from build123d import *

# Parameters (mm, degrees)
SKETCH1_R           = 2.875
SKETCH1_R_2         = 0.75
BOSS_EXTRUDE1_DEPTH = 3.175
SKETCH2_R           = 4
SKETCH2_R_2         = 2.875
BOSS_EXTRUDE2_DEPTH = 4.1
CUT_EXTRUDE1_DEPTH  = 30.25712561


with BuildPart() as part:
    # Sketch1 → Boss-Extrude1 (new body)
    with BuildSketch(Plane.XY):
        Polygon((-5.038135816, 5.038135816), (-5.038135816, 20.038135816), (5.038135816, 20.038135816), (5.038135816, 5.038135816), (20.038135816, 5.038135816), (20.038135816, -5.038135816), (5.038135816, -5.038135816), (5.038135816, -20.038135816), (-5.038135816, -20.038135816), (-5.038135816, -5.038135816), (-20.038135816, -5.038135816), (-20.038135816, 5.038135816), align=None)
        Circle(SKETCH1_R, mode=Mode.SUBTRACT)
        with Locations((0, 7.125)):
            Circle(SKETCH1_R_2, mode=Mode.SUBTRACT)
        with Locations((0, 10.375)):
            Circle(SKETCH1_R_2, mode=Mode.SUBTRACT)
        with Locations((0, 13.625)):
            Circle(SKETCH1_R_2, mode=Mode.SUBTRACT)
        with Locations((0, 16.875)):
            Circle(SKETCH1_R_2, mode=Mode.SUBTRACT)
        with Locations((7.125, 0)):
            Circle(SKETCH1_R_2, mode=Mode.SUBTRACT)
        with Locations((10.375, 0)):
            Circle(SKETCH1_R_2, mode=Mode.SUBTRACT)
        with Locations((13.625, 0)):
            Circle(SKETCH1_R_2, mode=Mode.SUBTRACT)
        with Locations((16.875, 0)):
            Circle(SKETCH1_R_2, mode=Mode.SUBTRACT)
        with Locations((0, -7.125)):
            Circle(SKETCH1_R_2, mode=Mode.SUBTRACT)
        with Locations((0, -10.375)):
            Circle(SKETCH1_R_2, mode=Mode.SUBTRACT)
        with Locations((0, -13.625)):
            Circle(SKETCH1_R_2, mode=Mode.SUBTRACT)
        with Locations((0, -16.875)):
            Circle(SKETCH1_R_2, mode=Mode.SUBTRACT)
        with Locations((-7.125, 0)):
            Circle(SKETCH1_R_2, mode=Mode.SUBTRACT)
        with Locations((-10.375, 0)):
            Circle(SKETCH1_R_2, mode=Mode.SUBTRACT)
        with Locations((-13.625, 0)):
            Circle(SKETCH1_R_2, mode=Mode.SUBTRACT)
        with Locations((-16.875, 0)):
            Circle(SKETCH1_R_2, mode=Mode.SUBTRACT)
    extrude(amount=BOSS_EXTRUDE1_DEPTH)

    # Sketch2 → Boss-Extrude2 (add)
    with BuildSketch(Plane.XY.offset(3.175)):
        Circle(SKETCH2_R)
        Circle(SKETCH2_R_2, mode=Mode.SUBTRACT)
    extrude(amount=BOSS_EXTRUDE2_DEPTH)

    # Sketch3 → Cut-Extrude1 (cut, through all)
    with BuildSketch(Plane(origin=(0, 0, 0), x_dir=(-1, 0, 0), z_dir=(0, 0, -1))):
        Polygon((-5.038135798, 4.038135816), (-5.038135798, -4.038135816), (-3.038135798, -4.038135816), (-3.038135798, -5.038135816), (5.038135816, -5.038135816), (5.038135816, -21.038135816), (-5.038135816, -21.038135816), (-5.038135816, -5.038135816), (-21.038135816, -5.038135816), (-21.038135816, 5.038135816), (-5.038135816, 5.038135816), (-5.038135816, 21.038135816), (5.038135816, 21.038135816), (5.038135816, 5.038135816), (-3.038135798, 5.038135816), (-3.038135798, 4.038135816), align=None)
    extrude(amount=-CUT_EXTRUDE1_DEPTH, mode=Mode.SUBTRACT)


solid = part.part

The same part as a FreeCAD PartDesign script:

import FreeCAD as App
import Part
import Sketcher
from FreeCAD import Vector


def add_polygon(sketch, points):
    """Adds a closed chain of lines whose ends are joined by coincident constraints."""
    first, n = sketch.GeometryCount, len(points)
    for a, b in zip(points, points[1:] + points[:1]):
        sketch.addGeometry(Part.LineSegment(App.Vector(*a, 0), App.Vector(*b, 0)), False)
    for i in range(n):
        sketch.addConstraint(Sketcher.Constraint("Coincident", first + i, 2, first + (i + 1) % n, 1))

doc = App.newDocument("Part")
body = doc.addObject("PartDesign::Body", "Body")

sketch1 = doc.addObject("Sketcher::SketchObject", "Sketch")
body.addObject(sketch1)
sketch1.AttachmentSupport = (doc.XY_Plane, [""])
sketch1.MapMode = "FlatFace"
add_polygon(sketch1, [(-5, 20), (-5, 5), (-20, 5), (-20, -5), (-5, -5), (-5, -20), (5, -20), (5, -5), (20, -5), (20, 5), (5, 5), (5, 20)])
sketch1.addGeometry(Part.Circle(Vector(0, -16.9, 0), Vector(0, 0, 1), 0.8), False)
sketch1.addGeometry(Part.Circle(Vector(0, -13.6, 0), Vector(0, 0, 1), 0.8), False)
sketch1.addGeometry(Part.Circle(Vector(0, -10.4, 0), Vector(0, 0, 1), 0.8), False)
sketch1.addGeometry(Part.Circle(Vector(0, -7.1, 0), Vector(0, 0, 1), 0.8), False)
sketch1.addGeometry(Part.Circle(Vector(16.9, 0, 0), Vector(0, 0, 1), 0.8), False)
sketch1.addGeometry(Part.Circle(Vector(13.6, 0, 0), Vector(0, 0, 1), 0.8), False)
sketch1.addGeometry(Part.Circle(Vector(10.4, 0, 0), Vector(0, 0, 1), 0.8), False)
sketch1.addGeometry(Part.Circle(Vector(7.1, 0, 0), Vector(0, 0, 1), 0.8), False)
sketch1.addGeometry(Part.Circle(Vector(0, 0, 0), Vector(0, 0, 1), 2.9), False)
sketch1.addGeometry(Part.Circle(Vector(-7.1, 0, 0), Vector(0, 0, 1), 0.8), False)
sketch1.addGeometry(Part.Circle(Vector(0, 7.1, 0), Vector(0, 0, 1), 0.8), False)
sketch1.addGeometry(Part.Circle(Vector(-10.4, 0, 0), Vector(0, 0, 1), 0.8), False)
sketch1.addGeometry(Part.Circle(Vector(-13.6, 0, 0), Vector(0, 0, 1), 0.8), False)
sketch1.addGeometry(Part.Circle(Vector(-16.9, 0, 0), Vector(0, 0, 1), 0.8), False)
sketch1.addGeometry(Part.Circle(Vector(0, 10.4, 0), Vector(0, 0, 1), 0.8), False)
sketch1.addGeometry(Part.Circle(Vector(0, 13.6, 0), Vector(0, 0, 1), 0.8), False)
sketch1.addGeometry(Part.Circle(Vector(0, 16.9, 0), Vector(0, 0, 1), 0.8), False)
sketch1.addConstraint([
    Sketcher.Constraint("Vertical", 0),
    Sketcher.Constraint("Horizontal", 1),
    Sketcher.Constraint("Vertical", 2),
    Sketcher.Constraint("Horizontal", 3),
    Sketcher.Constraint("Vertical", 4),
    Sketcher.Constraint("Horizontal", 5),
    Sketcher.Constraint("Vertical", 6),
    Sketcher.Constraint("Horizontal", 7),
    Sketcher.Constraint("Vertical", 8),
    Sketcher.Constraint("Horizontal", 9),
    Sketcher.Constraint("Vertical", 10),
    Sketcher.Constraint("Horizontal", 11),
    Sketcher.Constraint("Coincident", 20, 3, -1, 1),
    Sketcher.Constraint("Equal", 12, 13),
    Sketcher.Constraint("Equal", 13, 14),
    Sketcher.Constraint("Equal", 14, 15),
    Sketcher.Constraint("Equal", 15, 16),
    Sketcher.Constraint("Equal", 16, 17),
    Sketcher.Constraint("Equal", 17, 18),
    Sketcher.Constraint("Equal", 18, 19),
    Sketcher.Constraint("Equal", 19, 21),
    Sketcher.Constraint("Equal", 21, 22),
    Sketcher.Constraint("Equal", 22, 23),
    Sketcher.Constraint("Equal", 23, 24),
    Sketcher.Constraint("Equal", 24, 25),
    Sketcher.Constraint("Equal", 25, 26),
    Sketcher.Constraint("Equal", 26, 27),
    Sketcher.Constraint("Equal", 27, 28),
    Sketcher.Constraint("Symmetric", 19, 3, 21, 3, -1, 1),
    Sketcher.Constraint("Symmetric", 15, 3, 22, 3, -1, 1),
    Sketcher.Constraint("Symmetric", 18, 3, 23, 3, -1, 1),
    Sketcher.Constraint("Symmetric", 17, 3, 24, 3, -1, 1),
    Sketcher.Constraint("Symmetric", 16, 3, 25, 3, -1, 1),
    Sketcher.Constraint("Symmetric", 14, 3, 26, 3, -1, 1),
    Sketcher.Constraint("Symmetric", 13, 3, 27, 3, -1, 1),
    Sketcher.Constraint("Symmetric", 12, 3, 28, 3, -1, 1),
    Sketcher.Constraint("Symmetric", 0, 2, 6, 2, -1, 1),
    Sketcher.Constraint("Symmetric", 2, 2, 8, 2, -1, 1),
    Sketcher.Constraint("Symmetric", 4, 2, 10, 2, -1, 1),
    Sketcher.Constraint("Symmetric", 3, 2, 6, 2, -2),
    Sketcher.Constraint("PointOnObject", 12, 3, -2),
    Sketcher.Constraint("PointOnObject", 13, 3, -2),
    Sketcher.Constraint("PointOnObject", 14, 3, -2),
    Sketcher.Constraint("PointOnObject", 15, 3, -2),
    Sketcher.Constraint("PointOnObject", 16, 3, -1),
    Sketcher.Constraint("PointOnObject", 17, 3, -1),
    Sketcher.Constraint("PointOnObject", 18, 3, -1),
    Sketcher.Constraint("PointOnObject", 19, 3, -1),
    Sketcher.Constraint("Equal", 9, 0),
    Sketcher.Constraint("Equal", 11, 2),
    Sketcher.Constraint("Diameter", 12, 1.5),
    Sketcher.Constraint("Diameter", 20, 5.75),
    Sketcher.Constraint("DistanceX", 1, 2, 1, 1, 15.0),
    Sketcher.Constraint("DistanceY", 12, 3, 14, 3, 6.5),
    Sketcher.Constraint("DistanceY", 13, 3, 15, 3, 6.5),
    Sketcher.Constraint("DistanceX", 18, 3, 16, 3, 6.5),
    Sketcher.Constraint("DistanceX", 19, 3, 17, 3, 6.5),
    Sketcher.Constraint("DistanceY", 12, 3, 13, 3, 3.25),
    Sketcher.Constraint("DistanceX", 17, 3, 16, 3, 3.25),
    Sketcher.Constraint("DistanceX", 21, 3, 19, 3, 14.25),
    Sketcher.Constraint("DistanceY", 15, 3, 22, 3, 14.25),
    Sketcher.Constraint("DistanceX", 5, 1, 5, 2, 10.076272),
])
pad1 = doc.addObject("PartDesign::Pad", "Pad")
body.addObject(pad1)
pad1.Profile = sketch1
pad1.Length = 3.175

sketch2 = doc.addObject("Sketcher::SketchObject", "Sketch001")
body.addObject(sketch2)
sketch2.AttachmentSupport = (doc.XY_Plane, [""])
sketch2.MapMode = "FlatFace"
sketch2.AttachmentOffset = App.Placement(Vector(0, 0, 3.175), App.Rotation())
sketch2.addGeometry([
    Part.Circle(Vector(0, 0, 0), Vector(0, 0, 1), 4),
    Part.Circle(Vector(0, 0, 0), Vector(0, 0, 1), 2.9),
], False)
sketch2.addConstraint([
    Sketcher.Constraint("Coincident", 0, 3, -1, 1),
    Sketcher.Constraint("Coincident", 1, 3, -1, 1),
    Sketcher.Constraint("Diameter", 0, 8.0),
    Sketcher.Constraint("Diameter", 1, 5.75),
])
pad2 = doc.addObject("PartDesign::Pad", "Pad001")
body.addObject(pad2)
pad2.Profile = sketch2
pad2.Length = 4.1

sketch3 = doc.addObject("Sketcher::SketchObject", "Sketch002")
body.addObject(sketch3)
sketch3.AttachmentSupport = (doc.XY_Plane, [""])
sketch3.MapMode = "FlatFace"
add_polygon(sketch3, [(5, -4), (5, 4), (3, 4), (3, 5), (-5, 5), (-5, 21), (5, 21), (5, 5), (21, 5), (21, -5), (5, -5), (5, -21), (-5, -21), (-5, -5), (3, -5), (3, -4)])
sketch3.addConstraint([
    Sketcher.Constraint("Vertical", 0),
    Sketcher.Constraint("Horizontal", 1),
    Sketcher.Constraint("Vertical", 2),
    Sketcher.Constraint("Horizontal", 3),
    Sketcher.Constraint("Vertical", 4),
    Sketcher.Constraint("Horizontal", 5),
    Sketcher.Constraint("Vertical", 6),
    Sketcher.Constraint("Horizontal", 7),
    Sketcher.Constraint("Vertical", 8),
    Sketcher.Constraint("Horizontal", 9),
    Sketcher.Constraint("Vertical", 10),
    Sketcher.Constraint("Horizontal", 11),
    Sketcher.Constraint("Vertical", 12),
    Sketcher.Constraint("Horizontal", 13),
    Sketcher.Constraint("Vertical", 14),
    Sketcher.Constraint("Horizontal", 15),
    Sketcher.Constraint("Symmetric", 3, 2, 9, 2, -1, 1),
    Sketcher.Constraint("Symmetric", 5, 2, 11, 2, -1, 1),
    Sketcher.Constraint("Symmetric", 3, 2, 6, 2, -2),
    Sketcher.Constraint("Symmetric", 2, 2, 13, 2, -1),
    Sketcher.Constraint("Vertical", 0, 2, 5, 2),
    Sketcher.Constraint("Equal", 13, 0),
    Sketcher.Constraint("Equal", 9, 4),
    Sketcher.Constraint("Equal", 11, 8),
    Sketcher.Constraint("Equal", 2, 14),
    Sketcher.Constraint("DistanceX", 1, 2, 1, 1, 2.0),
    Sketcher.Constraint("DistanceX", 7, 1, 7, 2, 16.0),
    Sketcher.Constraint("DistanceX", 3, 2, 3, 1, 8.076272),
])
pocket1 = doc.addObject("PartDesign::Pocket", "Pocket")
body.addObject(pocket1)
pocket1.Profile = sketch3
pocket1.Type = "ThroughAll"
pocket1.Reversed = True

doc.recompute()
